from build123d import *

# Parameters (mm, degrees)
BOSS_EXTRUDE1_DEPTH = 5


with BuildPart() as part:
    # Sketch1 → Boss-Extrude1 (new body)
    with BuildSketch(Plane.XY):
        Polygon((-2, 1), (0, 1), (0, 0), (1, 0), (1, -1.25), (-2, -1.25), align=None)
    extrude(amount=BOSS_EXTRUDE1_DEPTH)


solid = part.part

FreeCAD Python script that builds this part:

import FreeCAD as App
import Part
import Sketcher
from FreeCAD import Vector
Q = App.Units.Quantity


def add_polygon(sketch, points):
    """Adds a closed chain of lines whose ends are joined by coincident constraints."""
    first, n = sketch.GeometryCount, len(points)
    for a, b in zip(points, points[1:] + points[:1]):
        sketch.addGeometry(Part.LineSegment(App.Vector(*a, 0), App.Vector(*b, 0)), False)
    for i in range(n):
        sketch.addConstraint(Sketcher.Constraint("Coincident", first + i, 2, first + (i + 1) % n, 1))

doc = App.newDocument("Part")
body = doc.addObject("PartDesign::Body", "Body")

sketch1 = body.newObject("Sketcher::SketchObject", "Sketch")
sketch1.AttachmentSupport = (doc.getObject("XY_Plane"), [""])
sketch1.MapMode = "FlatFace"
add_polygon(sketch1, [(0, 1), (-2, 1), (-2, -1.2), (1, -1.2), (1, 0), (0, 0)])
sketch1.addConstraint(Sketcher.Constraint("Horizontal", 0))
sketch1.addConstraint(Sketcher.Constraint("Vertical", 1))
sketch1.addConstraint(Sketcher.Constraint("Horizontal", 2))
sketch1.addConstraint(Sketcher.Constraint("Vertical", 3))
sketch1.addConstraint(Sketcher.Constraint("Horizontal", 4))
sketch1.addConstraint(Sketcher.Constraint("Vertical", 5))
sketch1.addConstraint(Sketcher.Constraint("Coincident", 4, 2, -1, 1))
sketch1.addConstraint(Sketcher.Constraint("Equal", 4, 5))
sketch1.addConstraint(Sketcher.Constraint("DistanceX", 0, 2, 0, 1, Q("2 mm")))
sketch1.addConstraint(Sketcher.Constraint("DistanceX", 2, 1, 2, 2, Q("3 mm")))
sketch1.addConstraint(Sketcher.Constraint("DistanceY", 1, 2, 1, 1, Q("2.25 mm")))
pad1 = body.newObject("PartDesign::Pad", "Pad")
pad1.Profile = sketch1
pad1.Length = 5

doc.recompute()
